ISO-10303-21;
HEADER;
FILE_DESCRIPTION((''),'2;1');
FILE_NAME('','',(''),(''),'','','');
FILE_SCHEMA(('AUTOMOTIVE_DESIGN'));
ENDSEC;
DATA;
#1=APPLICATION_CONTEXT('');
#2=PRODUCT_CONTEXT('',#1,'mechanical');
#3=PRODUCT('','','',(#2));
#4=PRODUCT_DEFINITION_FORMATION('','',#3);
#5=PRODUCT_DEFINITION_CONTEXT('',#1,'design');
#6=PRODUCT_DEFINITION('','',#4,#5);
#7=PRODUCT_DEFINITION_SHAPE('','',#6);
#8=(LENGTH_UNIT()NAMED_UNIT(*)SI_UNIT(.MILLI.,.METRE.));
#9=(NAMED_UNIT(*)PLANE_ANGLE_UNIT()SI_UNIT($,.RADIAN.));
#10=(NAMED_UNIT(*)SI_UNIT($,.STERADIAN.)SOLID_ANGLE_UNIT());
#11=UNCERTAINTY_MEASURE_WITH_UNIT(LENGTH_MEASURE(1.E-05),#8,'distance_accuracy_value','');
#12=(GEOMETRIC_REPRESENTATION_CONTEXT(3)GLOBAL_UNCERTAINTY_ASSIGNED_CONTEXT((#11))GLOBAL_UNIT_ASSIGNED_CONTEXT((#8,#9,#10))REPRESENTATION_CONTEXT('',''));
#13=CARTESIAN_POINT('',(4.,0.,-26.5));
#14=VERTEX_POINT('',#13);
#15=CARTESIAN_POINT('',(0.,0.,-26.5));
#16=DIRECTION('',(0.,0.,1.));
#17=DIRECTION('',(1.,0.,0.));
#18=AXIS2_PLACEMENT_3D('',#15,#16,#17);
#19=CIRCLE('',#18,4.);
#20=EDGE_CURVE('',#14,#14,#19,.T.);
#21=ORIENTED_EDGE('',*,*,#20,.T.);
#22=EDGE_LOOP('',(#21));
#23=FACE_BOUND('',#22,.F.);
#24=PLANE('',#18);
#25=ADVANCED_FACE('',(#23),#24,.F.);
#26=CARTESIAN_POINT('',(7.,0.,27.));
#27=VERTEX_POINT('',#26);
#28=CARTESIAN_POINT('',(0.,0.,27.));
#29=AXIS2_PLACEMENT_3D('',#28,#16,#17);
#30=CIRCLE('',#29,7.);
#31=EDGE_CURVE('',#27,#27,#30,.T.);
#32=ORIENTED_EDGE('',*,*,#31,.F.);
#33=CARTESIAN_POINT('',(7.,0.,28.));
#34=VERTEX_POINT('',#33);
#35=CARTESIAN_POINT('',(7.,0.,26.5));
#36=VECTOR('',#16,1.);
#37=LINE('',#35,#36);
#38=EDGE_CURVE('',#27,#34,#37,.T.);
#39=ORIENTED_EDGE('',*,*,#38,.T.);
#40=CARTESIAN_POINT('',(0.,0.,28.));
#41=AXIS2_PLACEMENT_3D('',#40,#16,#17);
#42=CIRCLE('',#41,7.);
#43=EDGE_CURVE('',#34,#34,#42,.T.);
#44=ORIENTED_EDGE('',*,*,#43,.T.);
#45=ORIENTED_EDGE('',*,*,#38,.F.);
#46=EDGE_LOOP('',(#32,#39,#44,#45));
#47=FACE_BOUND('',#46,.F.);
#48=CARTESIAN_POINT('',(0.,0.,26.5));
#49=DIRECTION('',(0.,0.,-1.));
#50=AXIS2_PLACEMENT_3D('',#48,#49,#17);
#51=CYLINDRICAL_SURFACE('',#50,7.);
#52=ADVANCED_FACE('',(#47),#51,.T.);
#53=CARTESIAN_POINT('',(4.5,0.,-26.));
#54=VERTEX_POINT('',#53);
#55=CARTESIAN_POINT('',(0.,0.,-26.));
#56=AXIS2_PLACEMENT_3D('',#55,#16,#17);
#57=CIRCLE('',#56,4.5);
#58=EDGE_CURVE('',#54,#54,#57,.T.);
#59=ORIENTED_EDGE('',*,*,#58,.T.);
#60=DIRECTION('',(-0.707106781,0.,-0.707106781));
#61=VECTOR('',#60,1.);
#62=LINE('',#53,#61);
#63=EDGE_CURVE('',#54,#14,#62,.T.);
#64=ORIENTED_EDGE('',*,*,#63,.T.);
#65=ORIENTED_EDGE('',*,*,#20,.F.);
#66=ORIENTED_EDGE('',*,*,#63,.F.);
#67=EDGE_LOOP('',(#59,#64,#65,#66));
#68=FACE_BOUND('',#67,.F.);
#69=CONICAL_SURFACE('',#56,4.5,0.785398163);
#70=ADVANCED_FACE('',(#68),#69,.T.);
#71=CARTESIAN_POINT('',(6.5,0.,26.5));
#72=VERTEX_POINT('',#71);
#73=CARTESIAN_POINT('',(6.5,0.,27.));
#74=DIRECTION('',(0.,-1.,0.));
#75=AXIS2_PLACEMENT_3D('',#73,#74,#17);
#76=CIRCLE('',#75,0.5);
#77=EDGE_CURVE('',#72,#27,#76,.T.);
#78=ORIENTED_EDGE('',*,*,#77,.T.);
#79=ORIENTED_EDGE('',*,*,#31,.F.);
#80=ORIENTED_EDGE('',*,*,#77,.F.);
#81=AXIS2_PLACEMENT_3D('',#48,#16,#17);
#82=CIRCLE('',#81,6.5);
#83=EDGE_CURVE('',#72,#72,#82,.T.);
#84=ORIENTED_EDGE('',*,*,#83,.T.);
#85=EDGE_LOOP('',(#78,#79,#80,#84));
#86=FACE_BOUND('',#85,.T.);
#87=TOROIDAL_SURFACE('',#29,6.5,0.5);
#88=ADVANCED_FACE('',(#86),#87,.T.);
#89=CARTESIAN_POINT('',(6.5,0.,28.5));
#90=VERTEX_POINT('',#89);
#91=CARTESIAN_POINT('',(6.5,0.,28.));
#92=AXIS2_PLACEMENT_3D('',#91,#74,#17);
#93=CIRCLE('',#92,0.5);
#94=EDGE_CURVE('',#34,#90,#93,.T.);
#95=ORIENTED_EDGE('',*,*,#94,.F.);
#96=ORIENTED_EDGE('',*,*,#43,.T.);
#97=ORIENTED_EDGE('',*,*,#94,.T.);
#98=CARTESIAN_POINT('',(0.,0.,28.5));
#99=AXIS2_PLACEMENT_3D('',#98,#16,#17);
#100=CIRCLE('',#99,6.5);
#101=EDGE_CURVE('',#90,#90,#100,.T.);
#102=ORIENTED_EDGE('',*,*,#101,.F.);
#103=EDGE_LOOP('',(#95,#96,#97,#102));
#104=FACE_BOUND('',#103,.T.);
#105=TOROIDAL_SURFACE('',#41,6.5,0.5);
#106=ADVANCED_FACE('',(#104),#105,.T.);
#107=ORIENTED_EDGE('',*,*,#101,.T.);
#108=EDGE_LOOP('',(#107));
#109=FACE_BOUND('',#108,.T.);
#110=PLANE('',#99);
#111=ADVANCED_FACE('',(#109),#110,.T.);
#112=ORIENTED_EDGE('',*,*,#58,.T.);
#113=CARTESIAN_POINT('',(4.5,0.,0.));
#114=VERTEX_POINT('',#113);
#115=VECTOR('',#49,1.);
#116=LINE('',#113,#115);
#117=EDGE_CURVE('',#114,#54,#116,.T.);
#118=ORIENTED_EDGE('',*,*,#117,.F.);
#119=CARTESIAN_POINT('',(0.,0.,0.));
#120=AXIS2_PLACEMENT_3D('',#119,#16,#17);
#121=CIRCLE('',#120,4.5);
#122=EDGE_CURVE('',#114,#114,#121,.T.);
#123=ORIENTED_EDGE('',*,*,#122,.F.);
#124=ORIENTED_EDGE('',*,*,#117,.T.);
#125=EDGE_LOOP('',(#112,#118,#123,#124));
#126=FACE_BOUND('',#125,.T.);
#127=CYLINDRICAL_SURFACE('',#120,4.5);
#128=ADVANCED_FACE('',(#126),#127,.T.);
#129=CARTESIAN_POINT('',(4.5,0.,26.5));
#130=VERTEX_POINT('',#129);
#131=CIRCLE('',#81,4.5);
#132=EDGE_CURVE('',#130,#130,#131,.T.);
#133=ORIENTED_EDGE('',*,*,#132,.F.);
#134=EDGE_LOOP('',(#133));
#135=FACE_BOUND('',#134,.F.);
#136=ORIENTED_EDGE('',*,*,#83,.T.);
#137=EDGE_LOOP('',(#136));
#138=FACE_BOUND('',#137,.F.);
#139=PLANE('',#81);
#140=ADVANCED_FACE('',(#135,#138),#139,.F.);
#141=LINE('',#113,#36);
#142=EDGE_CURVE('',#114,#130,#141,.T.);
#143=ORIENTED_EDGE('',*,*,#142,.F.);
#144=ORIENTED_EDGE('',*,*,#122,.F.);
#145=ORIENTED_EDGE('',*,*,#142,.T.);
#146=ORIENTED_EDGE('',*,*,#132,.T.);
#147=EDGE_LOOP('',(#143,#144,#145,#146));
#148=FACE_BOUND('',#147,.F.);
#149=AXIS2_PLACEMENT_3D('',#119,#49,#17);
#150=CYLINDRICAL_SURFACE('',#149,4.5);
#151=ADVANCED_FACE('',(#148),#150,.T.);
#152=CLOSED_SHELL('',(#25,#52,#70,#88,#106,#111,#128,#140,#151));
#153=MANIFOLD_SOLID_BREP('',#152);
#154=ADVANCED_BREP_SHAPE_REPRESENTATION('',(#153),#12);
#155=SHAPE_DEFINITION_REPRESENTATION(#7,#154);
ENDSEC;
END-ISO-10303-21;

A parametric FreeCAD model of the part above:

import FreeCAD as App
import Part
import Sketcher
Q = App.Units.Quantity


def edges_at(feature, points):
    """Names of the edges that pass closest to the given points."""
    edges = feature.Shape.Edges
    near = lambda p: min(range(len(edges)), key=lambda i: edges[i].distToShape(Part.Vertex(*p))[0])
    return sorted({f"Edge{near(p) + 1}" for p in points})

doc = App.newDocument("Part")
body = doc.addObject("PartDesign::Body", "Body")

# Sketch on XY plane
sketch1 = body.newObject("Sketcher::SketchObject", "Sketch")
sketch1.AttachmentSupport = (doc.getObject("XY_Plane"), [""])
sketch1.MapMode = "FlatFace"
sketch1.addGeometry(Part.Circle(App.Vector(0, 0, 0), App.Vector(0, 0, 1), 4.5), False)
sketch1.addConstraint(Sketcher.Constraint("Coincident", 0, 3, -1, 1))
sketch1.addConstraint(Sketcher.Constraint("Diameter", 0, Q("9 mm")))
pad1 = body.newObject("PartDesign::Pad", "Pad")
pad1.Profile = sketch1
pad1.Length = 53
pad1.Midplane = True

# Sketch on XY plane
sketch2 = body.newObject("Sketcher::SketchObject", "Sketch001")
sketch2.AttachmentSupport = (doc.getObject("XY_Plane"), [""])
sketch2.MapMode = "FlatFace"
sketch2.AttachmentOffset = App.Placement(App.Vector(0, 0, 26.5), App.Rotation())
sketch2.addGeometry(Part.Circle(App.Vector(0, 0, 0), App.Vector(0, 0, 1), 7), False)
sketch2.addConstraint(Sketcher.Constraint("Coincident", 0, 3, -1, 1))
sketch2.addConstraint(Sketcher.Constraint("Diameter", 0, Q("14 mm")))
pad2 = body.newObject("PartDesign::Pad", "Pad001")
pad2.Profile = sketch2
pad2.Length = 2
doc.recompute()

chamfer = body.newObject("PartDesign::Chamfer", "Chamfer")
chamfer.Base = (pad2, edges_at(pad2, [(-4.5, 0, -26.5)]))
chamfer.Size = 0.5
doc.recompute()

fillet = body.newObject("PartDesign::Fillet", "Fillet")
fillet.Base = (chamfer, edges_at(chamfer, [(-7, 0, 28.5), (-7, 0, 26.5)]))
fillet.Radius = 0.5

doc.recompute()
